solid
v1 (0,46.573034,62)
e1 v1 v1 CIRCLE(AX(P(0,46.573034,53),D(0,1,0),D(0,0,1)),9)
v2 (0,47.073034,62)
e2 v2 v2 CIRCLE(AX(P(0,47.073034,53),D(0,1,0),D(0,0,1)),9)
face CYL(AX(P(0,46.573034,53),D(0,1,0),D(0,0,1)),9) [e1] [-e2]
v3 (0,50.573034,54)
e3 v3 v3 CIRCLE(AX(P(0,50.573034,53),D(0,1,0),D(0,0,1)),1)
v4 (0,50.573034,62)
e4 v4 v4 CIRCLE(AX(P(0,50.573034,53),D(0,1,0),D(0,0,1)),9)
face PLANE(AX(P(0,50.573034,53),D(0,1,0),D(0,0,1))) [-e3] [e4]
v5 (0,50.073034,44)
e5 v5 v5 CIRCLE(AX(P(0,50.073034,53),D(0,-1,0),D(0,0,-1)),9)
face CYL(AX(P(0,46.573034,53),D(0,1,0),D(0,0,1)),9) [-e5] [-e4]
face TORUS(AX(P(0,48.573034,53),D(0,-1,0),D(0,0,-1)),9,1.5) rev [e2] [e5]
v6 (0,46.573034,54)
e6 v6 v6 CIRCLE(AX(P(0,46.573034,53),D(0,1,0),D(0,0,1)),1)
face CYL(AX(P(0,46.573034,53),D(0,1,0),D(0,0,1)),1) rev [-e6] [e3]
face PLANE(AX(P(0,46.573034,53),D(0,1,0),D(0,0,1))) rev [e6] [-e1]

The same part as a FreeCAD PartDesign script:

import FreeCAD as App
import Part
import Sketcher
Q = App.Units.Quantity

doc = App.newDocument("Part")
body = doc.addObject("PartDesign::Body", "Body")

# Sketch on XZ plane
sketch1 = body.newObject("Sketcher::SketchObject", "Sketch")
sketch1.AttachmentSupport = (doc.getObject("XZ_Plane"), [""])
sketch1.MapMode = "FlatFace"
sketch1.AttachmentOffset = App.Placement(App.Vector(0, 0, -50.573034), App.Rotation())
sketch1.addGeometry([
    Part.Circle(App.Vector(0, 53, 0), App.Vector(0, 0, 1), 9),
    Part.Circle(App.Vector(0, 53, 0), App.Vector(0, 0, 1), 1),
], False)
sketch1.addConstraint([
    Sketcher.Constraint("Coincident", 1, 3, 0, 3),
    Sketcher.Constraint("PointOnObject", 0, 3, -2),
    Sketcher.Constraint("Diameter", 0, Q("18 mm")),
    Sketcher.Constraint("Diameter", 1, Q("2 mm")),
    Sketcher.Constraint("DistanceY", -1, 1, 0, 3, Q("53 mm")),
])
pad1 = body.newObject("PartDesign::Pad", "Pad")
pad1.Profile = sketch1
pad1.Length = 4

# Sketch on YZ plane
sketch2 = body.newObject("Sketcher::SketchObject", "Sketch001")
sketch2.AttachmentSupport = (doc.getObject("YZ_Plane"), [""])
sketch2.MapMode = "FlatFace"
sketch2.addGeometry(Part.Circle(App.Vector(48.6, 44, 0), App.Vector(0, 0, 1), 1.5), False)
sketch2.addGeometry(Part.LineSegment(App.Vector(48.6, 53, 0), App.Vector(58.6, 53, 0)), True)  # axis
sketch2.addConstraint([
    Sketcher.Constraint("Horizontal", 1),
    Sketcher.Constraint("Vertical", 0, 3, 1, 1),
    Sketcher.Constraint("Diameter", 0, Q("3 mm")),
    Sketcher.Constraint("DistanceX", 1, 1, 1, 2, Q("10 mm")),
    Sketcher.Constraint("DistanceY", -1, 1, 0, 3, Q("44 mm")),
    Sketcher.Constraint("DistanceY", -1, 1, 1, 1, Q("53 mm")),
    Sketcher.Constraint("DistanceX", -1, 1, 0, 3, Q("48.573034 mm")),
])
groove = body.newObject("PartDesign::Groove", "Groove")
groove.Profile = sketch2
groove.ReferenceAxis = (sketch2, ["Axis0"])
groove.Angle = 360

doc.recompute()
